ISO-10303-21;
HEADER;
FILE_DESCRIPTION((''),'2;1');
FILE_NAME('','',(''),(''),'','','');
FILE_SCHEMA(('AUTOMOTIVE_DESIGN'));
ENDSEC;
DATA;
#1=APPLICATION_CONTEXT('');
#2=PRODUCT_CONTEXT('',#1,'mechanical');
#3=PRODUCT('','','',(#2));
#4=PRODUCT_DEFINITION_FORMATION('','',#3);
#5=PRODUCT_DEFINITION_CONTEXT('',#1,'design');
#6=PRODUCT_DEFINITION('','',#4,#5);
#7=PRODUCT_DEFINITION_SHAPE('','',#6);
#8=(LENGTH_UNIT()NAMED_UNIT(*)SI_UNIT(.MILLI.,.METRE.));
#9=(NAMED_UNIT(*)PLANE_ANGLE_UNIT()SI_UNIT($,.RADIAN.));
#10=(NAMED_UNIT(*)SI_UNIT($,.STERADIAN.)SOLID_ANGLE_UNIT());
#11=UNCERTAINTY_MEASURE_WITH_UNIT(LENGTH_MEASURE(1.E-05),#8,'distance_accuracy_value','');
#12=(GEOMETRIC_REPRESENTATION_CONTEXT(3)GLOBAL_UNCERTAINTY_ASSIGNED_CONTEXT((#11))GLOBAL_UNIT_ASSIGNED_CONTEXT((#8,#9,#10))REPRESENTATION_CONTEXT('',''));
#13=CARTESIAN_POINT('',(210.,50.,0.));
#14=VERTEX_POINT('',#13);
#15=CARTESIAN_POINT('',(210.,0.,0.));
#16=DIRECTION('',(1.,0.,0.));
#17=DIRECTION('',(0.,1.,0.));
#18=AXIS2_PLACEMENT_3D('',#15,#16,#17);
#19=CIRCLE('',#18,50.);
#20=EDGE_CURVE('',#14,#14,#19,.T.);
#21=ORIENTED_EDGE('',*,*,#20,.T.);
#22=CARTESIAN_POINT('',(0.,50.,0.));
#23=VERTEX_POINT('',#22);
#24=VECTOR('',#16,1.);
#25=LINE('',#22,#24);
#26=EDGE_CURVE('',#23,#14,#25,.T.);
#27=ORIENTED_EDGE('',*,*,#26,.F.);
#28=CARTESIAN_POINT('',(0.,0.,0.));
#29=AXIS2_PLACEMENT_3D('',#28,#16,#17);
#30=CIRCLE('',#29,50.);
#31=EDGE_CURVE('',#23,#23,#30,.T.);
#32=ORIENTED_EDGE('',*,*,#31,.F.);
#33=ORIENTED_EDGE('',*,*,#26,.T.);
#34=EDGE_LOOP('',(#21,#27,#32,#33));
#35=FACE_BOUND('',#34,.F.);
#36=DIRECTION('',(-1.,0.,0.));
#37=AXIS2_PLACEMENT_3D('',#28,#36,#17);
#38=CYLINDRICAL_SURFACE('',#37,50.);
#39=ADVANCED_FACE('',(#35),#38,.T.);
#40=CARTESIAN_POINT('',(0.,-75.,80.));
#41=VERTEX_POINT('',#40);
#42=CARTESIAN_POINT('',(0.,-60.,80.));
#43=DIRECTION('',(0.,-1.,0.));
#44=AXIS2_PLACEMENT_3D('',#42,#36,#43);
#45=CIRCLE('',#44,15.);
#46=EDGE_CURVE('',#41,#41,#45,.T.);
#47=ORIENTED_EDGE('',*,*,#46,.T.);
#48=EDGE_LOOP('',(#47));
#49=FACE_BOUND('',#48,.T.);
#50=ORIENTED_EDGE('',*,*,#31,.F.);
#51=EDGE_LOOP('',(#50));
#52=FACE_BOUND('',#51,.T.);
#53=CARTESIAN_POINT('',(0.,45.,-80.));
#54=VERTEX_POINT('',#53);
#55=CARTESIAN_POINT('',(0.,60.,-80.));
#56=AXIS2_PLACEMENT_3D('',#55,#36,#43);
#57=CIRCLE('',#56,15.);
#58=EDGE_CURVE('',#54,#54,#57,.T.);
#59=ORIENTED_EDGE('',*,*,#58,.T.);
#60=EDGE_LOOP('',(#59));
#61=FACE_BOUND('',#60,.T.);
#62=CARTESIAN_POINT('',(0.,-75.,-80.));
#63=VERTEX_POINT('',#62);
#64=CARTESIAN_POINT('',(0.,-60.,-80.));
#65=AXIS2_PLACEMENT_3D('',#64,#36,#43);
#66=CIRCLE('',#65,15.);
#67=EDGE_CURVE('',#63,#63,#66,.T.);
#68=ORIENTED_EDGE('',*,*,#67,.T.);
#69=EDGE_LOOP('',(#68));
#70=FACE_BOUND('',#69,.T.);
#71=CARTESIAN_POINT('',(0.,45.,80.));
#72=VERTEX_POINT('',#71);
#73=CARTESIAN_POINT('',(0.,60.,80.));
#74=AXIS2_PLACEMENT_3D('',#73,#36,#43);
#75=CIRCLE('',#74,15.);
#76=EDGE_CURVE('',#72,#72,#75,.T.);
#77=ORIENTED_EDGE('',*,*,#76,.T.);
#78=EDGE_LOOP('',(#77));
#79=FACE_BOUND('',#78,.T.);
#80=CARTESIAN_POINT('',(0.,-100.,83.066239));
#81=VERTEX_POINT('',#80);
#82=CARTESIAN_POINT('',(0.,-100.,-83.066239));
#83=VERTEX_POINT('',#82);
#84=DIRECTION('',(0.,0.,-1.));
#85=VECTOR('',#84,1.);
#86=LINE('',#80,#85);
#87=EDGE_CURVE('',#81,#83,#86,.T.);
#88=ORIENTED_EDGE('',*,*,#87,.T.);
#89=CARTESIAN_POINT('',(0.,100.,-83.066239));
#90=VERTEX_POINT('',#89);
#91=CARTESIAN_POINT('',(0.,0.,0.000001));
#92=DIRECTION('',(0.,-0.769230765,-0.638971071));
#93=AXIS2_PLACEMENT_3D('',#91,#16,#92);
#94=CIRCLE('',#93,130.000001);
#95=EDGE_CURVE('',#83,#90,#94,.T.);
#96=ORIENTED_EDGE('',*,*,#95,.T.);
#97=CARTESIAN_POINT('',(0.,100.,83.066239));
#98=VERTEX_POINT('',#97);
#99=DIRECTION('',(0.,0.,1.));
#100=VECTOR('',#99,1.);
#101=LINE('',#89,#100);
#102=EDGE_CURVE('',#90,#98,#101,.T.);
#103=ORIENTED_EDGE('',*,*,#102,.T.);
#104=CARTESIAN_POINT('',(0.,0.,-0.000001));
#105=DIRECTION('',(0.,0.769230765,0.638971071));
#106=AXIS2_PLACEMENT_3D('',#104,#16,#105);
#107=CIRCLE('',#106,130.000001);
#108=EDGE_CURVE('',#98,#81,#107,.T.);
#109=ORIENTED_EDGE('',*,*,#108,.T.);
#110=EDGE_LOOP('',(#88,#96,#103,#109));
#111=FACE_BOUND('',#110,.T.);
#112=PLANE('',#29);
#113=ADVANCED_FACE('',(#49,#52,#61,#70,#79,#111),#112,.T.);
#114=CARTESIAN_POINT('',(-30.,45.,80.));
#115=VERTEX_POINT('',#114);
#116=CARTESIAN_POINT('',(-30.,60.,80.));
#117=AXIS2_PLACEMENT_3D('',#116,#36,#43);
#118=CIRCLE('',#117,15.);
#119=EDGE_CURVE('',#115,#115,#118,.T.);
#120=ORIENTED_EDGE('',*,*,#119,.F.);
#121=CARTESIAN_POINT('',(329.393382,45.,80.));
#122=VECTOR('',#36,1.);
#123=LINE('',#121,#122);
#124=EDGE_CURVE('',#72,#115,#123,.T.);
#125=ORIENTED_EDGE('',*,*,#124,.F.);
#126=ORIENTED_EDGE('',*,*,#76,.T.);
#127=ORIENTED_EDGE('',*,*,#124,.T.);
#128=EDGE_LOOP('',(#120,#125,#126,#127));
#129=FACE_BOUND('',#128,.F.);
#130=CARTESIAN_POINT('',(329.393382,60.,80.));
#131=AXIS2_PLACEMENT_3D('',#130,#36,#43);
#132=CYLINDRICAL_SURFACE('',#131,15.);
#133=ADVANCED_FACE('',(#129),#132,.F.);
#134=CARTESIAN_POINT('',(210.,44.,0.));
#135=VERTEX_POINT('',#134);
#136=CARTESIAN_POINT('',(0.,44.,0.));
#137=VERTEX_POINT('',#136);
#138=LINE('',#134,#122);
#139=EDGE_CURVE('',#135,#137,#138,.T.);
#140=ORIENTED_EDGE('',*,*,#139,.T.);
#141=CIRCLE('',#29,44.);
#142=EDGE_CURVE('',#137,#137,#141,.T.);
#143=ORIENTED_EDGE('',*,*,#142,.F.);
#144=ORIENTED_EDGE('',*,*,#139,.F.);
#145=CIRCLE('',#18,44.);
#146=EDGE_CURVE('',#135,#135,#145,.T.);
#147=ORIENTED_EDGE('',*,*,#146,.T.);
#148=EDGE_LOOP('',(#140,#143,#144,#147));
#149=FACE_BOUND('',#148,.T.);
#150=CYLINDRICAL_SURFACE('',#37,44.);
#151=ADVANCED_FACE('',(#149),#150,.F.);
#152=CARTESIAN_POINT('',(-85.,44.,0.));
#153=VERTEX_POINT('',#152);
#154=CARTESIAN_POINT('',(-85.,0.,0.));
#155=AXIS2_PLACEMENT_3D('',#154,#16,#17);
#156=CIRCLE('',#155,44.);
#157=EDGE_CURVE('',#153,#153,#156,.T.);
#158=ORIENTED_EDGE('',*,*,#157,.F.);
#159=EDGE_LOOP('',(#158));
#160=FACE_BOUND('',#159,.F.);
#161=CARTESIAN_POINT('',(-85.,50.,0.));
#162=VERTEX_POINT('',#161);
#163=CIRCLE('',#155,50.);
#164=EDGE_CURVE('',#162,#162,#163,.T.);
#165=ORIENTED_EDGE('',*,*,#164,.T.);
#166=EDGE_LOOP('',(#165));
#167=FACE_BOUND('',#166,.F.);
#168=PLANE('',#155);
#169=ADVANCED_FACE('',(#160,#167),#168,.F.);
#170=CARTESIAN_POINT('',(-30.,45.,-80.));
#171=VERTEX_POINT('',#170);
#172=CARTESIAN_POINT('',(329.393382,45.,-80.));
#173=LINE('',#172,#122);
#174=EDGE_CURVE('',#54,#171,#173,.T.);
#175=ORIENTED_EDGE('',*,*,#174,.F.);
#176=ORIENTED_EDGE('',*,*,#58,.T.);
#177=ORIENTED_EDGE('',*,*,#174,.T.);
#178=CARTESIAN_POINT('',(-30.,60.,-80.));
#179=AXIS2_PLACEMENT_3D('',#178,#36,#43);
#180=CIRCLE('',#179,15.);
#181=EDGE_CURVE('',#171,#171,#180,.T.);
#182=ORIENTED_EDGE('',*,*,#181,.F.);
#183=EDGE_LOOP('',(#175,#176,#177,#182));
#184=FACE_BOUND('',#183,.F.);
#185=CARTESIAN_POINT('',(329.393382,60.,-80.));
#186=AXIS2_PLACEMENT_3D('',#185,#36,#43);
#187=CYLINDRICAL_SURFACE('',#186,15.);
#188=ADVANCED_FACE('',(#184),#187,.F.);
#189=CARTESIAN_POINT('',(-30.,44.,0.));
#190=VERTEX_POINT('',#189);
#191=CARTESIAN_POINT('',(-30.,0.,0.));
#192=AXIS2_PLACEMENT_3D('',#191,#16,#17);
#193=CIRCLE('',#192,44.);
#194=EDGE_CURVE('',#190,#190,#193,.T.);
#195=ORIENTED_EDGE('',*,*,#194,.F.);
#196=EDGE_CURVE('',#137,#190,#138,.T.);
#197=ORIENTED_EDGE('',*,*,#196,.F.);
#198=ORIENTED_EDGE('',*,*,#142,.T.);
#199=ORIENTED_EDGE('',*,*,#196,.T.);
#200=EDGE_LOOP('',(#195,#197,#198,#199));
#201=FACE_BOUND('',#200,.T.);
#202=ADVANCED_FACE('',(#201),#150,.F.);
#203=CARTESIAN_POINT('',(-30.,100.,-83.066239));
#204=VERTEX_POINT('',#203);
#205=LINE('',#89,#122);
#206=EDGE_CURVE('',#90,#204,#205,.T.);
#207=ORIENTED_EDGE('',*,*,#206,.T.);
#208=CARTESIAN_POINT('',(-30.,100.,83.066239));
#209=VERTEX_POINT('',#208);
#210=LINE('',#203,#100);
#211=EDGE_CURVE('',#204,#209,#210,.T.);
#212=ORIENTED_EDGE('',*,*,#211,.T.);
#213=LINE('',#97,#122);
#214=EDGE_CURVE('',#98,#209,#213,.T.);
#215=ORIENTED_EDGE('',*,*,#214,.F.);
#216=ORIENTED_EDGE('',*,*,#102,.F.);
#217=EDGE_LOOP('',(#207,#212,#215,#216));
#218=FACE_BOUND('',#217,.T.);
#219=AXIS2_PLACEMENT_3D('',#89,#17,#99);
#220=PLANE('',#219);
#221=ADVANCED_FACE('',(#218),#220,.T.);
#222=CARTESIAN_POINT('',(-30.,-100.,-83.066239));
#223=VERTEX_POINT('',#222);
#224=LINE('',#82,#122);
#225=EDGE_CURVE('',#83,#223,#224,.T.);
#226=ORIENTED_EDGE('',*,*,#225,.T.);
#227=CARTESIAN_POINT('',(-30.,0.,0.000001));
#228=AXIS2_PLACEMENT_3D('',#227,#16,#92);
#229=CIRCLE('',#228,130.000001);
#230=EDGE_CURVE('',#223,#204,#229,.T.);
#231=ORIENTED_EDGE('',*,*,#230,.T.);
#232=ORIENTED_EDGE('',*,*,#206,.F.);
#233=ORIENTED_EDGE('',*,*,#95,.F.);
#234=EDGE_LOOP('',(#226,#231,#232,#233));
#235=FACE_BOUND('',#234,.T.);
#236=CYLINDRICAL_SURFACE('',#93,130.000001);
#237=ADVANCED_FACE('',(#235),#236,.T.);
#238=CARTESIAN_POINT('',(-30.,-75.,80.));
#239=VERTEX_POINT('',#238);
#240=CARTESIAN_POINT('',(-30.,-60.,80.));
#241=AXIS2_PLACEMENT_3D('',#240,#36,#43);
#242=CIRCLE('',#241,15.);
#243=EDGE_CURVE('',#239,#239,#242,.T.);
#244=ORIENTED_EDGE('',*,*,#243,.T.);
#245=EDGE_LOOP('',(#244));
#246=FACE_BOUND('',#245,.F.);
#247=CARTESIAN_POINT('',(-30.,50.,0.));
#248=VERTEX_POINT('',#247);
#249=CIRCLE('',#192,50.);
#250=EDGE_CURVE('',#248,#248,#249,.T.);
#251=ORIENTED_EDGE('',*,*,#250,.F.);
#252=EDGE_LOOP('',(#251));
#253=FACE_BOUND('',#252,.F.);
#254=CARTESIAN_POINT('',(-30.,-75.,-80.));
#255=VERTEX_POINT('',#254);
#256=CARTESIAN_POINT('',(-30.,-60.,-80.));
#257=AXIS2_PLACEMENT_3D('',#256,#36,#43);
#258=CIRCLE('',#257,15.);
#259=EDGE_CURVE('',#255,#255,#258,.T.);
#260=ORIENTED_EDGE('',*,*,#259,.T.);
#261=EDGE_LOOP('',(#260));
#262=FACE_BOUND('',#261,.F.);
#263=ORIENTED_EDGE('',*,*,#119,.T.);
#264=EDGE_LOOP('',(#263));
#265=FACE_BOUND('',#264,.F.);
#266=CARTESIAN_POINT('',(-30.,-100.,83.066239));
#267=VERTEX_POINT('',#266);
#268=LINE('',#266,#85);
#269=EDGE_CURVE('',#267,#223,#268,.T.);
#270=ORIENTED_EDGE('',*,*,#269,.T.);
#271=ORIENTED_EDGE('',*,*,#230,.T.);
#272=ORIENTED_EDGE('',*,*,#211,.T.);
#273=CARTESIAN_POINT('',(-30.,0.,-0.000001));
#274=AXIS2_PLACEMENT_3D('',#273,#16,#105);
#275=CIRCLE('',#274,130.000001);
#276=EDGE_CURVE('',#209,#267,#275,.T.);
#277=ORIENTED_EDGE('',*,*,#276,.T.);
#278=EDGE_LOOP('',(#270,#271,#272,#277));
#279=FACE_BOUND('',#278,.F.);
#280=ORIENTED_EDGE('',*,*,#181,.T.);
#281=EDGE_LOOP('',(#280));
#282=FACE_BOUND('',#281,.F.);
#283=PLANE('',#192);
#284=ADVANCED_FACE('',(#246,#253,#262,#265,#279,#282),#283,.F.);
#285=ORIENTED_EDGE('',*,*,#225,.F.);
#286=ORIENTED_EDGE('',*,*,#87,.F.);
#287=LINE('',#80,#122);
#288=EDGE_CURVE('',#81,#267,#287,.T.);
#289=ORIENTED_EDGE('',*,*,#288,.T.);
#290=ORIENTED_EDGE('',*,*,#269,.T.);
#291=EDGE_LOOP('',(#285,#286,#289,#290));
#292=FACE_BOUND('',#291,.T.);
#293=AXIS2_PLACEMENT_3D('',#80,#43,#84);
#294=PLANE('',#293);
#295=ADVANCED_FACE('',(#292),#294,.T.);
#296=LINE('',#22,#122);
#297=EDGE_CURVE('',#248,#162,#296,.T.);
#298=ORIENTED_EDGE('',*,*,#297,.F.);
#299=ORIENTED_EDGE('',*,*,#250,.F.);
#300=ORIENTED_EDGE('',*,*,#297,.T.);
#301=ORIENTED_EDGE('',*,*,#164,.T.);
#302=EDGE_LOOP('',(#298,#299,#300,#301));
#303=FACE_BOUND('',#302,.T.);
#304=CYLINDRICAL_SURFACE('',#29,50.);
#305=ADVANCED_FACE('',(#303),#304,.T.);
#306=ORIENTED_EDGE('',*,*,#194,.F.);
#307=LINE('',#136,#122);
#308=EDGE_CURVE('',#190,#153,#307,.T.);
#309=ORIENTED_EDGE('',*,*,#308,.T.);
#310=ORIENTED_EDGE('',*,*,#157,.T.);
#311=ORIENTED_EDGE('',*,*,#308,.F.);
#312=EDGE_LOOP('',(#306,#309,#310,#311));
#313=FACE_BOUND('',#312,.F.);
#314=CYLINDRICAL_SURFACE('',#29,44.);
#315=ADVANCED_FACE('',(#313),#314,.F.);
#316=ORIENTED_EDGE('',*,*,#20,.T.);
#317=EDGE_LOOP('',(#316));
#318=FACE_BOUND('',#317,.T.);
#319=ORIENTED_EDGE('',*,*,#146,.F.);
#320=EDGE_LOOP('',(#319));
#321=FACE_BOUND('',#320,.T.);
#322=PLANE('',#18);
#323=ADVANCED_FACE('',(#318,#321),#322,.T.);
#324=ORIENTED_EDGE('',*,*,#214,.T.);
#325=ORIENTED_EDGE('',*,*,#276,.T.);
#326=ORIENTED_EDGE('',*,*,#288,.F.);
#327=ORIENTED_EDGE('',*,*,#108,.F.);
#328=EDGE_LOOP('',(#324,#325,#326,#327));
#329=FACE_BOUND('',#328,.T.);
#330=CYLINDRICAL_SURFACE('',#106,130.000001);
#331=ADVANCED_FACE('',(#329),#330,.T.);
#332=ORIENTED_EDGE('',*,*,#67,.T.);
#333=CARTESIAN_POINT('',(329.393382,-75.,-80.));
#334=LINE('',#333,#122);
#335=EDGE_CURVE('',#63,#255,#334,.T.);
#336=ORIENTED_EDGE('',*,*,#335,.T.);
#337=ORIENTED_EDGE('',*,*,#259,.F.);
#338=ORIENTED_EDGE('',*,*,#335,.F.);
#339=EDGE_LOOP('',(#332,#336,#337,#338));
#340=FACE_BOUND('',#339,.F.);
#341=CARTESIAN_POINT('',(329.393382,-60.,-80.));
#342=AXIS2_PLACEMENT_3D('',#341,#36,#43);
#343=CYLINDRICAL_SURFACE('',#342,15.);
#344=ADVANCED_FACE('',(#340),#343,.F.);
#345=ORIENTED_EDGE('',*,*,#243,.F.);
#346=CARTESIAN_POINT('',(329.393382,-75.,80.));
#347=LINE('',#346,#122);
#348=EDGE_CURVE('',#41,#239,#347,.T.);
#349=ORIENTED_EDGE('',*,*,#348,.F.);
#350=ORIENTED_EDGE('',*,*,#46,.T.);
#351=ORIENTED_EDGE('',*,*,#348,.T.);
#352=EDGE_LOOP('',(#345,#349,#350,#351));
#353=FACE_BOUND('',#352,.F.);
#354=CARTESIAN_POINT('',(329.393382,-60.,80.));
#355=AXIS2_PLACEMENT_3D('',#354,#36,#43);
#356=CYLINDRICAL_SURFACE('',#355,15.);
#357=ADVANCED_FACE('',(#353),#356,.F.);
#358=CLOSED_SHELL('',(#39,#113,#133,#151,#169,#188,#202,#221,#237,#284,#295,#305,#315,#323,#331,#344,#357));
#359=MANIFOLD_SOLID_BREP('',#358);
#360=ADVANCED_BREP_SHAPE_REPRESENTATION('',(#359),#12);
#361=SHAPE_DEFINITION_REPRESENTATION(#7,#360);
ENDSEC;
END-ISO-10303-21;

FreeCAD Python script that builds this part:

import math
import FreeCAD as App
import Part
import Sketcher
from FreeCAD import Vector
Q = App.Units.Quantity

doc = App.newDocument("Part")
body = doc.addObject("PartDesign::Body", "Body")

# Sketch on YZ plane
sketch1 = body.newObject("Sketcher::SketchObject", "Sketch")
sketch1.AttachmentSupport = (doc.getObject("YZ_Plane"), [""])
sketch1.MapMode = "FlatFace"
sketch1.addGeometry([
    Part.LineSegment(Vector(100, -83, 0), Vector(100, 83, 0)),  # 0
    Part.ArcOfCircle(Part.Circle(Vector(0, 0, 0), Vector(0, 0, 1), 130), math.radians(40), math.radians(140)),  # 1
    Part.LineSegment(Vector(-100, 83, 0), Vector(-100, -83, 0)),  # 2
    Part.ArcOfCircle(Part.Circle(Vector(0, 0, 0), Vector(0, 0, 1), 130), math.radians(-140), math.radians(-40)),  # 3
    Part.Circle(Vector(0, 0, 0), Vector(0, 0, 1), 44),  # 4
], False)
sketch1.addConstraint([
    Sketcher.Constraint("Coincident", 0, 2, 1, 1),
    Sketcher.Constraint("Coincident", 1, 2, 2, 1),
    Sketcher.Constraint("Coincident", 2, 2, 3, 1),
    Sketcher.Constraint("Coincident", 3, 2, 0, 1),
    Sketcher.Constraint("Vertical", 0),
    Sketcher.Constraint("Vertical", 2),
    Sketcher.Constraint("Coincident", 1, 3, -1, 1),
    Sketcher.Constraint("Coincident", 3, 3, -1, 1),
    Sketcher.Constraint("Coincident", 4, 3, -1, 1),
    Sketcher.Constraint("Equal", 1, 3),
    Sketcher.Constraint("Horizontal", 0, 2, 1, 2),
    Sketcher.Constraint("Diameter", 4, Q("88 mm")),
    Sketcher.Constraint("Radius", 1, Q("130.000001 mm")),
    Sketcher.Constraint("DistanceX", -1, 1, 0, 2, Q("100 mm")),
])
pad1 = body.newObject("PartDesign::Pad", "Pad")
pad1.Profile = sketch1
pad1.Length = 30
pad1.Reversed = True

# Sketch on YZ plane
sketch2 = body.newObject("Sketcher::SketchObject", "Sketch001")
sketch2.AttachmentSupport = (doc.getObject("YZ_Plane"), [""])
sketch2.MapMode = "FlatFace"
sketch2.addGeometry([
    Part.Circle(Vector(-60, 80, 0), Vector(0, 0, 1), 15),
    Part.Circle(Vector(60, 80, 0), Vector(0, 0, 1), 15),
    Part.Circle(Vector(60, -80, 0), Vector(0, 0, 1), 15),
    Part.Circle(Vector(-60, -80, 0), Vector(0, 0, 1), 15),
], False)
sketch2.addConstraint([
    Sketcher.Constraint("Equal", 0, 1),
    Sketcher.Constraint("Equal", 1, 2),
    Sketcher.Constraint("Equal", 2, 3),
    Sketcher.Constraint("Symmetric", 0, 3, 2, 3, -1, 1),
    Sketcher.Constraint("Symmetric", 1, 3, 3, 3, -1, 1),
    Sketcher.Constraint("Symmetric", 0, 3, 1, 3, -2),
    Sketcher.Constraint("Diameter", 0, Q("30 mm")),
    Sketcher.Constraint("DistanceX", 0, 3, -1, 1, Q("60 mm")),
    Sketcher.Constraint("DistanceY", -1, 1, 0, 3, Q("80 mm")),
])
doc.recompute()
hole = body.newObject("PartDesign::Hole", "Hole")
hole.Profile = sketch2
hole.ThreadType = "None"
hole.Diameter = 30
hole.DepthType = "ThroughAll"

# Sketch on YZ plane
sketch3 = body.newObject("Sketcher::SketchObject", "Sketch002")
sketch3.AttachmentSupport = (doc.getObject("YZ_Plane"), [""])
sketch3.MapMode = "FlatFace"
sketch3.addGeometry([
    Part.Circle(Vector(0, 0, 0), Vector(0, 0, 1), 50),
    Part.Circle(Vector(0, 0, 0), Vector(0, 0, 1), 44),
], False)
sketch3.addConstraint([
    Sketcher.Constraint("Coincident", 0, 3, -1, 1),
    Sketcher.Constraint("Coincident", 1, 3, -1, 1),
    Sketcher.Constraint("Diameter", 0, Q("100 mm")),
    Sketcher.Constraint("Diameter", 1, Q("88 mm")),
])
pad2 = body.newObject("PartDesign::Pad", "Pad001")
pad2.Profile = sketch3
pad2.Length = 210

# Sketch on YZ plane
sketch4 = body.newObject("Sketcher::SketchObject", "Sketch003")
sketch4.AttachmentSupport = (doc.getObject("YZ_Plane"), [""])
sketch4.MapMode = "FlatFace"
sketch4.addGeometry([
    Part.Circle(Vector(0, 0, 0), Vector(0, 0, 1), 50),
    Part.Circle(Vector(0, 0, 0), Vector(0, 0, 1), 44),
], False)
sketch4.addConstraint([
    Sketcher.Constraint("Coincident", 0, 3, -1, 1),
    Sketcher.Constraint("Coincident", 1, 3, -1, 1),
    Sketcher.Constraint("Diameter", 0, Q("100 mm")),
    Sketcher.Constraint("Diameter", 1, Q("88 mm")),
])
pad3 = body.newObject("PartDesign::Pad", "Pad002")
pad3.Profile = sketch4
pad3.Length = 85
pad3.Reversed = True

doc.recompute()
